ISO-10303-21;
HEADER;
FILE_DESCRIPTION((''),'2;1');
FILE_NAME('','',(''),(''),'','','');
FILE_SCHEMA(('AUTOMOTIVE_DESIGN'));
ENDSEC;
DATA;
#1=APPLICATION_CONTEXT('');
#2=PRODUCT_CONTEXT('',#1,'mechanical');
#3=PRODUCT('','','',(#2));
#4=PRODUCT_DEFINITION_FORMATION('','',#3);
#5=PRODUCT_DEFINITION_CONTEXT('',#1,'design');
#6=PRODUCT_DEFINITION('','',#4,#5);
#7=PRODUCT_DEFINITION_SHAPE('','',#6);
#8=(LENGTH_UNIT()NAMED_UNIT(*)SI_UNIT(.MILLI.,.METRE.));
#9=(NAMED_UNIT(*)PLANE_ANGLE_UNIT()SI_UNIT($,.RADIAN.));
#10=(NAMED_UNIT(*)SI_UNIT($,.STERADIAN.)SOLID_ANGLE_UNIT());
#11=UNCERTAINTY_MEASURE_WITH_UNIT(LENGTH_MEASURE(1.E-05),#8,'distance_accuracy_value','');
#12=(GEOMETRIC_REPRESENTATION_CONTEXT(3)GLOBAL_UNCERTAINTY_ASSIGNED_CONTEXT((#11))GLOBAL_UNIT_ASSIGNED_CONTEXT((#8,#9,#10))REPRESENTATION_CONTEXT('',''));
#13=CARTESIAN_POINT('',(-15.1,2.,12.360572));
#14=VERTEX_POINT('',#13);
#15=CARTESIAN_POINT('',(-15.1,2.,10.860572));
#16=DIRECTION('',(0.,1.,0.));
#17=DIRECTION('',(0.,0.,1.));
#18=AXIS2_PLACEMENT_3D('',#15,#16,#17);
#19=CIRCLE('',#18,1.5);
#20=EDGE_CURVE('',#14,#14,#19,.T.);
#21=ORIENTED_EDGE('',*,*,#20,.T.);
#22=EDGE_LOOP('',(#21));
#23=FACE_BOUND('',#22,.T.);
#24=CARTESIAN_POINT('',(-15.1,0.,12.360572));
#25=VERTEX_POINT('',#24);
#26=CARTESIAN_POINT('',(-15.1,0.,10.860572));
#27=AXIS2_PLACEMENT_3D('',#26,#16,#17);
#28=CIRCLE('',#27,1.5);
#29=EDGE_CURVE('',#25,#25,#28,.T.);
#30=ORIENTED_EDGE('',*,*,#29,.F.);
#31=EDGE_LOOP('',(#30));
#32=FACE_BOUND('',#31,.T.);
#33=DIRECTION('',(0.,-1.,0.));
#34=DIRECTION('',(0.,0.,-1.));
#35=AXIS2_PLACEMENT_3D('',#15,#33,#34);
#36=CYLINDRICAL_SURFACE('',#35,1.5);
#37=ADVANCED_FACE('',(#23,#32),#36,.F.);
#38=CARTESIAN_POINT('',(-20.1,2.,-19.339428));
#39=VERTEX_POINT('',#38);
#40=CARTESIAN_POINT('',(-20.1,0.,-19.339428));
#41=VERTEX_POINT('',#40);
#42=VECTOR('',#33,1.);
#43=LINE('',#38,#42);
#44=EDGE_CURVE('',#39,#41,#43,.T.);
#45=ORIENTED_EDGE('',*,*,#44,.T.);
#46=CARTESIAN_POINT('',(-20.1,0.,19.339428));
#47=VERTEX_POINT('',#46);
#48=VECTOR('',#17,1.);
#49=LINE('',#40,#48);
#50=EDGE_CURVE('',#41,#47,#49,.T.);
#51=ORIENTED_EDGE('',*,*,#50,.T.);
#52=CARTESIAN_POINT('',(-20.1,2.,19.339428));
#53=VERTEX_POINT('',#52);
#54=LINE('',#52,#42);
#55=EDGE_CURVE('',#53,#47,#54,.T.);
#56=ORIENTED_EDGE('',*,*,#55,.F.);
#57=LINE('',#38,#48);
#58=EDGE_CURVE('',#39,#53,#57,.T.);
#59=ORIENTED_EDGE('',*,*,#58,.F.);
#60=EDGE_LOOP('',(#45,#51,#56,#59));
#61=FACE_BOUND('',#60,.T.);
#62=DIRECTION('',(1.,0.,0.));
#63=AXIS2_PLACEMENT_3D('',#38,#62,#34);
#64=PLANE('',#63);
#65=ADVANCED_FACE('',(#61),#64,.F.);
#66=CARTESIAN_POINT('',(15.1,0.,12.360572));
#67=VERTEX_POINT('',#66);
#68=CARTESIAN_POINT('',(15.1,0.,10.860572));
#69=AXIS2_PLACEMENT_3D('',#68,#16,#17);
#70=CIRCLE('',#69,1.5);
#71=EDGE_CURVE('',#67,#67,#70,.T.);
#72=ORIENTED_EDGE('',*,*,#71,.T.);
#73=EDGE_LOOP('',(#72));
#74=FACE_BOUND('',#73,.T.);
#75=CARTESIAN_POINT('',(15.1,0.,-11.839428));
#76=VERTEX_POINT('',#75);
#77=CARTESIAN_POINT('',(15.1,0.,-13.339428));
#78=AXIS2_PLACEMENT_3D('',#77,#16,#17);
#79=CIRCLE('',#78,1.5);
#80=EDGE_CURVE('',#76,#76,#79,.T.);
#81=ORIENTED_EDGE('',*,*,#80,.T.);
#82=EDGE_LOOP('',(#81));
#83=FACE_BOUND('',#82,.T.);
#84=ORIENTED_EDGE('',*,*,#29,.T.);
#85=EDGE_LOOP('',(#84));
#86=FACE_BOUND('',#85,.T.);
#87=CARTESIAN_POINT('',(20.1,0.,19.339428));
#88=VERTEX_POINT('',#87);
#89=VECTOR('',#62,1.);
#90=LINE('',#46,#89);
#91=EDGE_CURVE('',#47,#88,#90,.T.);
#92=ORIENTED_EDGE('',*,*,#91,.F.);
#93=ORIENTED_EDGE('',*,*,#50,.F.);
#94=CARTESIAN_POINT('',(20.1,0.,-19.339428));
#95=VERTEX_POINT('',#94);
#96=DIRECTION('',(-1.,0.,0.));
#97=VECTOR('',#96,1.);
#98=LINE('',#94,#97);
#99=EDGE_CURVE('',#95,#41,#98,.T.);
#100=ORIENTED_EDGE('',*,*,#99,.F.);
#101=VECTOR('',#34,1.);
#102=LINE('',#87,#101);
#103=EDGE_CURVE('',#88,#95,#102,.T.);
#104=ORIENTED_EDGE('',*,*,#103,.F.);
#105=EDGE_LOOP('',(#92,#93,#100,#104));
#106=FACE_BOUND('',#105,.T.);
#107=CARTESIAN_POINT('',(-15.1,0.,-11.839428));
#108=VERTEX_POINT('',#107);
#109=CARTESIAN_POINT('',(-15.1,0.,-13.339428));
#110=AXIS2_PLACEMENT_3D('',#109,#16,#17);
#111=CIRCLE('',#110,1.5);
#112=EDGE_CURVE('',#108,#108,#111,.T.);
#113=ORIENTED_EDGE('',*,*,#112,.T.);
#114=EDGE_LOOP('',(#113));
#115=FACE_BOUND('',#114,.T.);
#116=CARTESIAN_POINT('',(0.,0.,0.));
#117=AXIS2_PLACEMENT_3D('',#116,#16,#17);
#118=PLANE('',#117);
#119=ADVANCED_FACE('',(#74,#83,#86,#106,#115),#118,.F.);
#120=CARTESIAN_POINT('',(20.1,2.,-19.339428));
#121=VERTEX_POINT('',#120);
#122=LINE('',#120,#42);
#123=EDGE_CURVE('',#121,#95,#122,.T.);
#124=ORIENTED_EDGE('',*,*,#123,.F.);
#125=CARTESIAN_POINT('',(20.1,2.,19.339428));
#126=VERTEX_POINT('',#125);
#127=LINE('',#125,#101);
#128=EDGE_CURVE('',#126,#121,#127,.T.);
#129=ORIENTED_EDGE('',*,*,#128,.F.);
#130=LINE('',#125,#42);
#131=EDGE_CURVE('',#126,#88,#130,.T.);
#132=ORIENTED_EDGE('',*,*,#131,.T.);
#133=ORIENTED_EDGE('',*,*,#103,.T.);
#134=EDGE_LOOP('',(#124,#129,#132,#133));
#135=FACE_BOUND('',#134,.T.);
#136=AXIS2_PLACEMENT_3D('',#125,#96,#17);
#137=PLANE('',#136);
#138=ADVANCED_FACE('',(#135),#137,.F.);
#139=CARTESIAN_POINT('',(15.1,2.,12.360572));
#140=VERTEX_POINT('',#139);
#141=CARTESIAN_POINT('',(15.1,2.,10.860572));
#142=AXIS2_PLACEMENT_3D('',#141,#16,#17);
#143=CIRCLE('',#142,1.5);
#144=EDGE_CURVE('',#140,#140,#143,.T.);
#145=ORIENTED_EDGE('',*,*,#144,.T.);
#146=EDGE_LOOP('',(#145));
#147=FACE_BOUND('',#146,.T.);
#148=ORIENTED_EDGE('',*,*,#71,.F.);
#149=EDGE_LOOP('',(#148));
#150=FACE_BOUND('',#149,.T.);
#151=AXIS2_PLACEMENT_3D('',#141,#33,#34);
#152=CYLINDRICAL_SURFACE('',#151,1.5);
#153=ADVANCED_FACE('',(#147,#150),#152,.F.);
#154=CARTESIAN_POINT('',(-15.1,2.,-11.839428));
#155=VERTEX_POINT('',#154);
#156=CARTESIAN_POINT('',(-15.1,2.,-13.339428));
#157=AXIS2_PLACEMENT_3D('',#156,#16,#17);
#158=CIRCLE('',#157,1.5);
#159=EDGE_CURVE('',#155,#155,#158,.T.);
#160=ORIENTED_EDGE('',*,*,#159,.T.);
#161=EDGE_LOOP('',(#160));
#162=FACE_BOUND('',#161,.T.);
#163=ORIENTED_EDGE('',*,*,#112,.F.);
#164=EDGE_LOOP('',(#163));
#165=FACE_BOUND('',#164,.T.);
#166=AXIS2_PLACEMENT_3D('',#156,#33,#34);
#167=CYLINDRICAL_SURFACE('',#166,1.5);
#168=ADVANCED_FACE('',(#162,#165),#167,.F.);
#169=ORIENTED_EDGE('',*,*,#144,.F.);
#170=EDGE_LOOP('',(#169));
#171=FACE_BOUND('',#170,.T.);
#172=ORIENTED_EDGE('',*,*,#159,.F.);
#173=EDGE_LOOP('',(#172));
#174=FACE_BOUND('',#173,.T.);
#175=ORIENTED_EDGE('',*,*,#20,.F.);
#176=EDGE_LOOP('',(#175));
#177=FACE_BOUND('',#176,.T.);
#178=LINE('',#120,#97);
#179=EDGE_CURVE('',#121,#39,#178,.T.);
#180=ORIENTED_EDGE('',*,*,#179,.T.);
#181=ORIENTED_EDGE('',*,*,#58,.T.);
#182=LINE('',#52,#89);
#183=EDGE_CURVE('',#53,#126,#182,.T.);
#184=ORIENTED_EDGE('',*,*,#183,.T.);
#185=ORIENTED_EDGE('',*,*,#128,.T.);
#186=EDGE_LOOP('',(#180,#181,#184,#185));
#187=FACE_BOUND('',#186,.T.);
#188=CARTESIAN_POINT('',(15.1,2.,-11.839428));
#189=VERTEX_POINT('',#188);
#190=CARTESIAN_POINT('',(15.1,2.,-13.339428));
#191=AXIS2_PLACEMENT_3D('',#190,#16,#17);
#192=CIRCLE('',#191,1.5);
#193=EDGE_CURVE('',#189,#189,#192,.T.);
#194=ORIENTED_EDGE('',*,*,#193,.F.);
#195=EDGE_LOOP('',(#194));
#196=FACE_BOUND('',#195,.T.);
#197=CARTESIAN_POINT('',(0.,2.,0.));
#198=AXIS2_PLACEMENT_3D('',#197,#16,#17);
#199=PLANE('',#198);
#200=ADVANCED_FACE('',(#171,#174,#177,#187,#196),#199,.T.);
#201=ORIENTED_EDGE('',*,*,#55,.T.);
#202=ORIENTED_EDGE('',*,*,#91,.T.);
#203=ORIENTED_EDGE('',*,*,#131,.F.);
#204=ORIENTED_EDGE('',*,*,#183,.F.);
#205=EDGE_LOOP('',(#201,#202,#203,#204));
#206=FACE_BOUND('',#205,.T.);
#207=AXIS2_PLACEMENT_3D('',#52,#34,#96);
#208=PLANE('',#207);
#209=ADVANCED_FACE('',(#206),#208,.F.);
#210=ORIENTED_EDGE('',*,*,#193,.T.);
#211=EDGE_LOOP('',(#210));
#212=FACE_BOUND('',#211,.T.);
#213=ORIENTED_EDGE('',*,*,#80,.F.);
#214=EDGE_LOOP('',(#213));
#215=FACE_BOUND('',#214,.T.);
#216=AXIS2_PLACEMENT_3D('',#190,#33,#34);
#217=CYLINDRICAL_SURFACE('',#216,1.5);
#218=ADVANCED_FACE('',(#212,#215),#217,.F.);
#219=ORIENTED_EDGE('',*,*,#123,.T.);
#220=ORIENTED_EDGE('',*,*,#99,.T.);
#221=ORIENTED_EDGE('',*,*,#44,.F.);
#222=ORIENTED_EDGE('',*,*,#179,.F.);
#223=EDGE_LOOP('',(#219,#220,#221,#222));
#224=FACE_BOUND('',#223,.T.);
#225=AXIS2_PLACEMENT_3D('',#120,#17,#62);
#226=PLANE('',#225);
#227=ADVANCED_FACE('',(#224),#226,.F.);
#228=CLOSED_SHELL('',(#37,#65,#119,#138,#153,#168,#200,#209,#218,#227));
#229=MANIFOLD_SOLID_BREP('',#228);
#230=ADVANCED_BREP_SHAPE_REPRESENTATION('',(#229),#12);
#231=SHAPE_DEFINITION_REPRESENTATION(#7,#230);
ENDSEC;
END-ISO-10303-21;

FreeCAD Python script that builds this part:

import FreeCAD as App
import Part
import Sketcher
from FreeCAD import Vector
Q = App.Units.Quantity


def add_polygon(sketch, points):
    """Adds a closed chain of lines whose ends are joined by coincident constraints."""
    first, n = sketch.GeometryCount, len(points)
    for a, b in zip(points, points[1:] + points[:1]):
        sketch.addGeometry(Part.LineSegment(App.Vector(*a, 0), App.Vector(*b, 0)), False)
    for i in range(n):
        sketch.addConstraint(Sketcher.Constraint("Coincident", first + i, 2, first + (i + 1) % n, 1))

doc = App.newDocument("Part")
body = doc.addObject("PartDesign::Body", "Body")

# Sketch on XZ plane
sketch1 = doc.addObject("Sketcher::SketchObject", "Sketch")
body.addObject(sketch1)
sketch1.AttachmentSupport = (doc.XZ_Plane, [""])
sketch1.MapMode = "FlatFace"
add_polygon(sketch1, [(-20.1, -19.3), (-20.1, 19.3), (20.1, 19.3), (20.1, -19.3)])  # lines 0-3
sketch1.addGeometry(Part.Circle(Vector(-15.1, 10.9, 0), Vector(0, 0, 1), 1.5), False)  # 4
sketch1.addGeometry(Part.Circle(Vector(15.1, 10.9, 0), Vector(0, 0, 1), 1.5), False)  # 5
sketch1.addGeometry(Part.Circle(Vector(-15.1, -13.3, 0), Vector(0, 0, 1), 1.5), False)  # 6
sketch1.addGeometry(Part.Circle(Vector(15.1, -13.3, 0), Vector(0, 0, 1), 1.5), False)  # 7
sketch1.addConstraint([
    Sketcher.Constraint("Vertical", 0),
    Sketcher.Constraint("Horizontal", 1),
    Sketcher.Constraint("Vertical", 2),
    Sketcher.Constraint("Horizontal", 3),
    Sketcher.Constraint("Equal", 4, 5),
    Sketcher.Constraint("Equal", 5, 6),
    Sketcher.Constraint("Equal", 6, 7),
    Sketcher.Constraint("Symmetric", 0, 2, 2, 2, -1, 1),
    Sketcher.Constraint("Symmetric", 4, 3, 5, 3, -2),
    Sketcher.Constraint("Symmetric", 6, 3, 7, 3, -2),
    Sketcher.Constraint("Vertical", 4, 3, 6, 3),
    Sketcher.Constraint("Diameter", 4, Q("3 mm")),
    Sketcher.Constraint("DistanceX", 1, 1, 1, 2, Q("40.2 mm")),
    Sketcher.Constraint("DistanceX", 0, 2, 4, 3, Q("5 mm")),
    Sketcher.Constraint("DistanceY", 2, 2, 7, 3, Q("6 mm")),
    Sketcher.Constraint("DistanceY", 6, 3, 4, 3, Q("24.2 mm")),
    Sketcher.Constraint("DistanceY", 0, 1, 0, 2, Q("38.678856 mm")),
])
pad1 = doc.addObject("PartDesign::Pad", "Pad")
body.addObject(pad1)
pad1.Profile = sketch1
pad1.Length = 2
pad1.Reversed = True

doc.recompute()
